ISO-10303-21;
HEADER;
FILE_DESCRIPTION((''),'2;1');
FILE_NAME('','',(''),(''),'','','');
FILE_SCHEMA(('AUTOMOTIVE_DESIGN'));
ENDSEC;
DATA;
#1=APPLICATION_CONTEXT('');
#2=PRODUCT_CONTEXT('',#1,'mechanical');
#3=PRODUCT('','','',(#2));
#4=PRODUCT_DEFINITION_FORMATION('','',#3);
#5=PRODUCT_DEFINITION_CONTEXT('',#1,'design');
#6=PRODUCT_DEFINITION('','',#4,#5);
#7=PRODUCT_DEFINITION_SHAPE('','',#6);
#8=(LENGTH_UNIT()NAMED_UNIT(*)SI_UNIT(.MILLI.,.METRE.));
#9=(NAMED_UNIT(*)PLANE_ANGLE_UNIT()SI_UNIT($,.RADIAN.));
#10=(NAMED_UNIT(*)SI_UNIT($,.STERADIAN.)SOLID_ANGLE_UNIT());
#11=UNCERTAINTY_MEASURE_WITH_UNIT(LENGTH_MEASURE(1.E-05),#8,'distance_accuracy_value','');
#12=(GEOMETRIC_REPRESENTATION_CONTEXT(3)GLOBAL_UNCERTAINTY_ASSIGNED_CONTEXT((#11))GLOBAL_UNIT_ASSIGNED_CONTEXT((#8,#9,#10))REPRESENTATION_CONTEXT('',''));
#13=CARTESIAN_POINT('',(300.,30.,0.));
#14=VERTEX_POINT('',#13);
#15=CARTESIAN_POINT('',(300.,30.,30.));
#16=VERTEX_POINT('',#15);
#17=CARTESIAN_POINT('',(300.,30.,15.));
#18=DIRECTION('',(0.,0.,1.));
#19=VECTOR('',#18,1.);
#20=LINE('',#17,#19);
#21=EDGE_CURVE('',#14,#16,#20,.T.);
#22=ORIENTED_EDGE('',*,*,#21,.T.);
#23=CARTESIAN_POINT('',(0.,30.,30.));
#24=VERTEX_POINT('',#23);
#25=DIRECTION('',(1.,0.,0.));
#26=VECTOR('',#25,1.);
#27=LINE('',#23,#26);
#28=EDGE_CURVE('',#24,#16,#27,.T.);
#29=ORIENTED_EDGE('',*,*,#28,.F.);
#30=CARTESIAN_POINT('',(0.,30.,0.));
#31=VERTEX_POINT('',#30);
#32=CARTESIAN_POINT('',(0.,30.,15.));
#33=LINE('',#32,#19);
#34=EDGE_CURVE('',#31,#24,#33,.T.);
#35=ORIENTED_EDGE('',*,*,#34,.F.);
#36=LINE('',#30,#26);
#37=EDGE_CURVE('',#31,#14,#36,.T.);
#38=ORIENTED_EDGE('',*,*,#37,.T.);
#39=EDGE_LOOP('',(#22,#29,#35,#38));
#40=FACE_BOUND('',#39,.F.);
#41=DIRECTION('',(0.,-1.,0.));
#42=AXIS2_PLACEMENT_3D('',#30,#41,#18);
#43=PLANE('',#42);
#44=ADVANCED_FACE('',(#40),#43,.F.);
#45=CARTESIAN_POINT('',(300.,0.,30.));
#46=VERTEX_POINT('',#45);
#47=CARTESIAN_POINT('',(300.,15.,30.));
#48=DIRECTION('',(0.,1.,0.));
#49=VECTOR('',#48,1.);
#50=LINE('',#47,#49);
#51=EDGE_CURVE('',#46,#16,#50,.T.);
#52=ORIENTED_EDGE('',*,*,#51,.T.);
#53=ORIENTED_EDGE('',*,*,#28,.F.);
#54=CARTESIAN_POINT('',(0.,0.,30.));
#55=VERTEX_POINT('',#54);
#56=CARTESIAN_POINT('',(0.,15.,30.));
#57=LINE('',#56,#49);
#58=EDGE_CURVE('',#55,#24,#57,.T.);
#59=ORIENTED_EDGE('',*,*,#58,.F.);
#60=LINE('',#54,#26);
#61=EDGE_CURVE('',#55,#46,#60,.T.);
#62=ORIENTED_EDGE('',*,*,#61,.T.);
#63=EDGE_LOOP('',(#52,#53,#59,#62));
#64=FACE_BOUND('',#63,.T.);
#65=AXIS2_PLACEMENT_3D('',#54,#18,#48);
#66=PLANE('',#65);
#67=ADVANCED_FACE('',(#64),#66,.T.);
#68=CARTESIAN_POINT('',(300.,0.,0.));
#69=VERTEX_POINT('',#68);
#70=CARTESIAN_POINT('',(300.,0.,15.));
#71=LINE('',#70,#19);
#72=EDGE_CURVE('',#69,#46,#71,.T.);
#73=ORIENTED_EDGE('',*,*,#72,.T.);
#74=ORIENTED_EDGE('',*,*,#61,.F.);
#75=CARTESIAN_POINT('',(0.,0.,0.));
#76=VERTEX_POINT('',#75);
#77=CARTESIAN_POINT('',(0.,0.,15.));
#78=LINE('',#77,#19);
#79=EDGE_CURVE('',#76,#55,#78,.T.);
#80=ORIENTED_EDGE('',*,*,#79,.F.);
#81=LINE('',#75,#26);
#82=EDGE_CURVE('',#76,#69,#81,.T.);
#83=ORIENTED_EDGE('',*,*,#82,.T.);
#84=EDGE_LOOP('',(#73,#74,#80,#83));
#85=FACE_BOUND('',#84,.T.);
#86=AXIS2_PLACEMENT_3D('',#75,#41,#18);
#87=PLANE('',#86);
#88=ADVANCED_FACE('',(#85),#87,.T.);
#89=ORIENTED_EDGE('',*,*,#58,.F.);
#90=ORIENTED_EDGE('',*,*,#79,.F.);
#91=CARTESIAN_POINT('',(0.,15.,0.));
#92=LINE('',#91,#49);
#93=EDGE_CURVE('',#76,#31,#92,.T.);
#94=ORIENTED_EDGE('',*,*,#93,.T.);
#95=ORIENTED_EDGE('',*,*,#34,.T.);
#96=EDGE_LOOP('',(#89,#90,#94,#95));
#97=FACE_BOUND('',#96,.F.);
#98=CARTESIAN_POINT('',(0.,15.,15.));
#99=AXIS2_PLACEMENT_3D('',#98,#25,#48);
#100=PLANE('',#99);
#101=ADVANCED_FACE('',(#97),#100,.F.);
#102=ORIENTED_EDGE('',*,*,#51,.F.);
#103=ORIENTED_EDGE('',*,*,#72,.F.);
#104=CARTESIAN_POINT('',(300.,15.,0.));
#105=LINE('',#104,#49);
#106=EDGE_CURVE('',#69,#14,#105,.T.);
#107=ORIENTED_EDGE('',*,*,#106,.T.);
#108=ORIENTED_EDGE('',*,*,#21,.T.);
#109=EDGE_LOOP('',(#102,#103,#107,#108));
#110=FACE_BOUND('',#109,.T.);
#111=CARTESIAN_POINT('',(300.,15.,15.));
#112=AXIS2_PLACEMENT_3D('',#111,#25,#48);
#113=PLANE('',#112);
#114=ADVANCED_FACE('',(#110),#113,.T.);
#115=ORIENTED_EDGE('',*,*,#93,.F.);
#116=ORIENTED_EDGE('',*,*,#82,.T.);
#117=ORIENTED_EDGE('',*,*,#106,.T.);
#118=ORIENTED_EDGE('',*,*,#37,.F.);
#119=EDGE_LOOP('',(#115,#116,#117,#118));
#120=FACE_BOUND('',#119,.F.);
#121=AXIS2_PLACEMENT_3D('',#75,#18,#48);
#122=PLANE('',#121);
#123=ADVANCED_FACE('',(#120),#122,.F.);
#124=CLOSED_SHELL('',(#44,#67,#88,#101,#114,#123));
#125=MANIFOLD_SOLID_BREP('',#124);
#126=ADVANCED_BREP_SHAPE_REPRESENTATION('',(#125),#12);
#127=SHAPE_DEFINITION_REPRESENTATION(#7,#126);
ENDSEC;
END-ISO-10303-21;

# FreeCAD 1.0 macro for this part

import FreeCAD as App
import Part
import Sketcher

V = App.Vector
Q = App.Units.Quantity


def add_polygon(sketch, points):
    """Adds a closed chain of lines whose ends are joined by coincident constraints."""
    first, n = sketch.GeometryCount, len(points)
    for a, b in zip(points, points[1:] + points[:1]):
        sketch.addGeometry(Part.LineSegment(App.Vector(*a, 0), App.Vector(*b, 0)), False)
    for i in range(n):
        sketch.addConstraint(Sketcher.Constraint("Coincident", first + i, 2, first + (i + 1) % n, 1))

doc = App.newDocument("Part")
params = doc.addObject("Spreadsheet::Sheet", "Params")
for row, (alias, value) in enumerate([
    ("sketch1_width", "30 mm"),
    ("pad1_length", "300 mm"),
], start=1):
    params.set(f"A{row}", alias)
    params.set(f"B{row}", "=" + value)
    params.setAlias(f"B{row}", alias)

body = doc.addObject("PartDesign::Body", "Body")

# Sketch on YZ plane
sketch1 = body.newObject("Sketcher::SketchObject", "Sketch")
sketch1.AttachmentSupport = (doc.getObject("YZ_Plane"), [""])
sketch1.MapMode = "FlatFace"
add_polygon(sketch1, [(0, 30), (0, 0), (30, 0), (30, 30)])  # lines 0-3
sketch1.addConstraint(Sketcher.Constraint("Vertical", 0))
sketch1.addConstraint(Sketcher.Constraint("Horizontal", 1))
sketch1.addConstraint(Sketcher.Constraint("Vertical", 2))
sketch1.addConstraint(Sketcher.Constraint("Horizontal", 3))
sketch1.addConstraint(Sketcher.Constraint("Coincident", 0, 2, -1, 1))
sketch1.addConstraint(Sketcher.Constraint("Equal", 3, 0))
sketch1.addConstraint(Sketcher.Constraint("DistanceX", 1, 1, 1, 2, Q("30 mm")))
sketch1.setExpression("Constraints[10]", "Params.sketch1_width")
pad1 = body.newObject("PartDesign::Pad", "Pad")
pad1.Profile = sketch1
pad1.setExpression("Length", "Params.pad1_length")

doc.recompute()
